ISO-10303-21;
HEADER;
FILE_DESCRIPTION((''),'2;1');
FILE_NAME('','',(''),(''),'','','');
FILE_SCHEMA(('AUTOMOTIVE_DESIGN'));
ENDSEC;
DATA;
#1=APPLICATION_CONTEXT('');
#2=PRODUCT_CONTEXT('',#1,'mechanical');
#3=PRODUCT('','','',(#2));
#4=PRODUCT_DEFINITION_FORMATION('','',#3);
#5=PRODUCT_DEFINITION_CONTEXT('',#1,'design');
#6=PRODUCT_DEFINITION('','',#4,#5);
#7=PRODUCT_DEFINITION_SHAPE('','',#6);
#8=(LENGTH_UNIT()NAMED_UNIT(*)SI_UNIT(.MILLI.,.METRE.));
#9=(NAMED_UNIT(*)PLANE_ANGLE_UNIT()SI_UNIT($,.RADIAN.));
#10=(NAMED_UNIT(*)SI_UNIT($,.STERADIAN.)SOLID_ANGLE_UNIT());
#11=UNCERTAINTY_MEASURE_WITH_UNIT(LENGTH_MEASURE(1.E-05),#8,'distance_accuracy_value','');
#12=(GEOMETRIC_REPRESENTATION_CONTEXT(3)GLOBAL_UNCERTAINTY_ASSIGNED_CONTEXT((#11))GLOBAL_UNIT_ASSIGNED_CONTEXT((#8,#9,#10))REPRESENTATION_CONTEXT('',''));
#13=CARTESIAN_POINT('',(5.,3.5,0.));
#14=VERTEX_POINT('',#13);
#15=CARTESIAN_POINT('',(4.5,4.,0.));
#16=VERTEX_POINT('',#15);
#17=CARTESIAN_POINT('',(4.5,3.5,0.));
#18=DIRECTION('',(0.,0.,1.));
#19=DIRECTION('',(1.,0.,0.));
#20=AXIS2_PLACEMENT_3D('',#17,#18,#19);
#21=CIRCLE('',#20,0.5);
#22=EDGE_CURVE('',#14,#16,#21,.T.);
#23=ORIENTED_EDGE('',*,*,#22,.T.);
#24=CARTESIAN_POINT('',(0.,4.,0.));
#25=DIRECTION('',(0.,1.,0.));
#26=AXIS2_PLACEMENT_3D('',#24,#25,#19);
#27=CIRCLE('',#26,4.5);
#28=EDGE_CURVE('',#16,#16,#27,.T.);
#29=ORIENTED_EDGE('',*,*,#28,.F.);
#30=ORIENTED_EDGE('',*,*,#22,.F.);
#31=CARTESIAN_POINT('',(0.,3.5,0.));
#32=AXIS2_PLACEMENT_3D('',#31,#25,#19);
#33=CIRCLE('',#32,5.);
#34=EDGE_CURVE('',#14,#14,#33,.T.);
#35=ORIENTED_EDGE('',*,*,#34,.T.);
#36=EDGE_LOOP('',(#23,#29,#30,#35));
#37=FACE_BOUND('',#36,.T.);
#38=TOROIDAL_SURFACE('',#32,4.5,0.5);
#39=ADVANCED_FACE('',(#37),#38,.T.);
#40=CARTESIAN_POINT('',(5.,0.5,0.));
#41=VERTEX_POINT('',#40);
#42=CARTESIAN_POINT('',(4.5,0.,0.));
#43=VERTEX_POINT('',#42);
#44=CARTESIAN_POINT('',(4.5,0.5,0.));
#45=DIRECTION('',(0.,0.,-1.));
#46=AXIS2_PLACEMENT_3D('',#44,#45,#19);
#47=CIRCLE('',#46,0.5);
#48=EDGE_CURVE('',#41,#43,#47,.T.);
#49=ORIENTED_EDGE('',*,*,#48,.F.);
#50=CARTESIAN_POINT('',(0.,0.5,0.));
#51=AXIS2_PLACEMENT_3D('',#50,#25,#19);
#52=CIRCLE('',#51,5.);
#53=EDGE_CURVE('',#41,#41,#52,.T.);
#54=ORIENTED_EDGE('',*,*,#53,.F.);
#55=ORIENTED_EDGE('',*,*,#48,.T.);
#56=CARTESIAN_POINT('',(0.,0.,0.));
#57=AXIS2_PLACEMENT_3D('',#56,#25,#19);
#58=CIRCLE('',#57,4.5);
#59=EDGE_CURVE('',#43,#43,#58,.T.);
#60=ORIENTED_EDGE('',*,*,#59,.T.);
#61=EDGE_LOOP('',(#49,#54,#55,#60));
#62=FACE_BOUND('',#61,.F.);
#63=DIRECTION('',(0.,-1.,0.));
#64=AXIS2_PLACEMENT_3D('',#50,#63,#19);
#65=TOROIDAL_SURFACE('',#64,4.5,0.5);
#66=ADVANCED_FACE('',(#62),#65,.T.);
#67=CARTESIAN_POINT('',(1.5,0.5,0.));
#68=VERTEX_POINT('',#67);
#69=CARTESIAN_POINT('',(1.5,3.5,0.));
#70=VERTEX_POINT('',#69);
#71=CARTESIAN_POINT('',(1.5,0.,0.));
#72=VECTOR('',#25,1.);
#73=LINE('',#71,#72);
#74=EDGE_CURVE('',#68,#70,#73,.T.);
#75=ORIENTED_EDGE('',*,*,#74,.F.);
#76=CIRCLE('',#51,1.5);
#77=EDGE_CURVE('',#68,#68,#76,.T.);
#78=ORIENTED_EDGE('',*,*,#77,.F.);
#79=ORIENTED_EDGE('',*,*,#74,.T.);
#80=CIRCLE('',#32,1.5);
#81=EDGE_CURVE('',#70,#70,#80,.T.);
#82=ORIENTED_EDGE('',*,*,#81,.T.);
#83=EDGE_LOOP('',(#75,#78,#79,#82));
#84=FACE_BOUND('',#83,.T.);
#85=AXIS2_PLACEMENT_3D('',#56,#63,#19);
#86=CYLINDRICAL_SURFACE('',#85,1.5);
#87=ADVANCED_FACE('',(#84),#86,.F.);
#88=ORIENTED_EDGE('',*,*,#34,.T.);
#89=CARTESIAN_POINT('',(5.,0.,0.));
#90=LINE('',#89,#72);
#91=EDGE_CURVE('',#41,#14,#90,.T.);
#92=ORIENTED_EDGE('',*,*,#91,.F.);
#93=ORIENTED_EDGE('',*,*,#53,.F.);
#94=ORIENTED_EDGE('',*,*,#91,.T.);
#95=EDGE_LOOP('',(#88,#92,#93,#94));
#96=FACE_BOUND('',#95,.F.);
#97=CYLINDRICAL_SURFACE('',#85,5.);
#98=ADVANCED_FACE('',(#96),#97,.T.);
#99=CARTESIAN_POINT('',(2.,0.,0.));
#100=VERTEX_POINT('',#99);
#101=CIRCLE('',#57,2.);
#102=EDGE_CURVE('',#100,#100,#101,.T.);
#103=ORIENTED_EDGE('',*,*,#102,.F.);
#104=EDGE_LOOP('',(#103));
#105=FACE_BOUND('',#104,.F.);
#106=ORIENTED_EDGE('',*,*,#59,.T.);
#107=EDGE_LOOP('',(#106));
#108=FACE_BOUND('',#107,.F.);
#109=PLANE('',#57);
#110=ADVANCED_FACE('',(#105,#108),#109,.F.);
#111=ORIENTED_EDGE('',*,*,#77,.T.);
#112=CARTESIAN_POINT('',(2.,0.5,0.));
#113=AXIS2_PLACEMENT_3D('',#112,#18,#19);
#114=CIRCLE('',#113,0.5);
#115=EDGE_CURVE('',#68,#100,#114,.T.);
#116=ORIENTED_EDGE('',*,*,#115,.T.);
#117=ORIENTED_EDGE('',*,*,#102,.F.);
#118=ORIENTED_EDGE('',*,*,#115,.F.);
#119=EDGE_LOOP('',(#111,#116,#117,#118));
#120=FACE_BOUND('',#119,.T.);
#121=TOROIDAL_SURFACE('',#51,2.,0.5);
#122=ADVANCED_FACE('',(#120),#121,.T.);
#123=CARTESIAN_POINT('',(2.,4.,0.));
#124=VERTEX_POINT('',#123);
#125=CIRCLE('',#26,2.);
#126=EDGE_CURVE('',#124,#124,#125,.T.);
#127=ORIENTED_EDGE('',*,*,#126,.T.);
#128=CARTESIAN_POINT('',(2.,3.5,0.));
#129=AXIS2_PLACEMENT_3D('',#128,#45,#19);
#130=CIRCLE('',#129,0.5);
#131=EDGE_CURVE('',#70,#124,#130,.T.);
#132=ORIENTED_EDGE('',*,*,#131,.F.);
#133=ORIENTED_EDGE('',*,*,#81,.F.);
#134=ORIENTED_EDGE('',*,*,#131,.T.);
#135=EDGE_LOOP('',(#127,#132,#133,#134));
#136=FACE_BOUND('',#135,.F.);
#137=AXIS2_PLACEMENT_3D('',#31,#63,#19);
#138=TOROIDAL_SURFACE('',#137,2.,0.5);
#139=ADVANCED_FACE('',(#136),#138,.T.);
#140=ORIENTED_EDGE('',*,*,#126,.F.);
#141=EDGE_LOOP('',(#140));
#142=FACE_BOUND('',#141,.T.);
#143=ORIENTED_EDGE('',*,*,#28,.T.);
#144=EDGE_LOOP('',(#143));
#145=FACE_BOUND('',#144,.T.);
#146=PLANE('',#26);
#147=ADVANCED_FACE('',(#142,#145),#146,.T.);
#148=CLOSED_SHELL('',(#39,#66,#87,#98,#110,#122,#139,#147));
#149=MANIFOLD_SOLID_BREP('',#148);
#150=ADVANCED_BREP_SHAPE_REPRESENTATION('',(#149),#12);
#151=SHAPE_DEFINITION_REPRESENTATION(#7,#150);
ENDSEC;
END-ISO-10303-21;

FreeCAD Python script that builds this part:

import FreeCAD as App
import Part
import Sketcher
Q = App.Units.Quantity


def edges_at(feature, points):
    """Names of the edges that pass closest to the given points."""
    edges = feature.Shape.Edges
    near = lambda p: min(range(len(edges)), key=lambda i: edges[i].distToShape(Part.Vertex(*p))[0])
    return sorted({f"Edge{near(p) + 1}" for p in points})

doc = App.newDocument("Part")
params = doc.addObject("Spreadsheet::Sheet", "Params")
for row, (alias, value) in enumerate([
    ("sketch1_diameter", "10 mm"),
    ("sketch1_diameter2", "3 mm"),
    ("pad1_length", "4 mm"),
    ("fillet_radius", "0.5 mm"),
], start=1):
    params.set(f"A{row}", alias)
    params.set(f"B{row}", "=" + value)
    params.setAlias(f"B{row}", alias)

body = doc.addObject("PartDesign::Body", "Body")

sketch1 = body.newObject("Sketcher::SketchObject", "Sketch")
sketch1.AttachmentSupport = (doc.getObject("XZ_Plane"), [""])
sketch1.MapMode = "FlatFace"
sketch1.addGeometry(Part.Circle(App.Vector(0, 0, 0), App.Vector(0, 0, 1), 5), False)
sketch1.addGeometry(Part.Circle(App.Vector(0, 0, 0), App.Vector(0, 0, 1), 1.5), False)
sketch1.addConstraint(Sketcher.Constraint("Coincident", 0, 3, -1, 1))
sketch1.addConstraint(Sketcher.Constraint("Coincident", 1, 3, -1, 1))
sketch1.addConstraint(Sketcher.Constraint("Diameter", 0, Q("10 mm")))
sketch1.addConstraint(Sketcher.Constraint("Diameter", 1, Q("3 mm")))
sketch1.setExpression("Constraints[2]", "Params.sketch1_diameter")
sketch1.setExpression("Constraints[3]", "Params.sketch1_diameter2")
pad1 = body.newObject("PartDesign::Pad", "Pad")
pad1.Profile = sketch1
pad1.setExpression("Length", "Params.pad1_length")
pad1.Reversed = True
doc.recompute()

fillet = body.newObject("PartDesign::Fillet", "Fillet")
fillet.Base = (pad1, edges_at(pad1, [
    (-5, 0, 0),
    (-5, 4, 0),
    (-1.5, 0, 0),
    (-1.5, 4, 0),
]))
fillet.setExpression("Radius", "Params.fillet_radius")

doc.recompute()
